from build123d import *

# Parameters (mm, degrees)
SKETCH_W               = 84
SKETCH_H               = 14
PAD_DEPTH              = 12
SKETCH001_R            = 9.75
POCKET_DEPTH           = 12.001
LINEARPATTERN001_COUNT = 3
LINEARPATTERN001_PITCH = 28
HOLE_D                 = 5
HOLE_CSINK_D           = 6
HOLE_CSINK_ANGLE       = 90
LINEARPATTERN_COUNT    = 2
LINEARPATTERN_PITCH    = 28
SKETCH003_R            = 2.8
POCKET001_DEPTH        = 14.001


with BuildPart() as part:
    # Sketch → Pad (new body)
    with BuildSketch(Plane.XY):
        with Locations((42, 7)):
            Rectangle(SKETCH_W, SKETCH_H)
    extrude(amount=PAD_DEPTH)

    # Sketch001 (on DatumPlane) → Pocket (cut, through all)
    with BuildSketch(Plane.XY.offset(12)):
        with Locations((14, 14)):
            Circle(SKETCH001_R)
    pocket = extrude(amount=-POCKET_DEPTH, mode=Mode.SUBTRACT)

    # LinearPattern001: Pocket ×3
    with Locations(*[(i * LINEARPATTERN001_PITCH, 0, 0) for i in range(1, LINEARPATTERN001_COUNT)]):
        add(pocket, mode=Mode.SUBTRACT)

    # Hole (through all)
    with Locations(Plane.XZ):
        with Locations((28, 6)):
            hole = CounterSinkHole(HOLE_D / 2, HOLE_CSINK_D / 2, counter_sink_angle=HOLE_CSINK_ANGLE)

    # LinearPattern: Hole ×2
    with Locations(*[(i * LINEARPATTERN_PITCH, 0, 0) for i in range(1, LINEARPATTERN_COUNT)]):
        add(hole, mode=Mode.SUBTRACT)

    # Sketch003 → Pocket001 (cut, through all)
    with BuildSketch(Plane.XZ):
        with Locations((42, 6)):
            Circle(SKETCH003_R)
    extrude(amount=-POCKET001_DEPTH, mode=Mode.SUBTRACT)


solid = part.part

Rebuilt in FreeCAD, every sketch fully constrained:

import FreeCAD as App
import Part
import Sketcher
from FreeCAD import Vector
Q = App.Units.Quantity


def add_polygon(sketch, points):
    """Adds a closed chain of lines whose ends are joined by coincident constraints."""
    first, n = sketch.GeometryCount, len(points)
    for a, b in zip(points, points[1:] + points[:1]):
        sketch.addGeometry(Part.LineSegment(App.Vector(*a, 0), App.Vector(*b, 0)), False)
    for i in range(n):
        sketch.addConstraint(Sketcher.Constraint("Coincident", first + i, 2, first + (i + 1) % n, 1))

doc = App.newDocument("Part")
params = doc.addObject("Spreadsheet::Sheet", "Params")
for row, (alias, value) in enumerate([
    ("sketch1_width", "84 mm"),
    ("sketch1_height", "14 mm"),
    ("pad1_length", "12 mm"),
    ("sketch2_diameter", "19.5 mm"),
    ("linearpattern_pitch", "28 mm"),
    ("sketch3_diameter", "5 mm"),
    ("hole_diameter", "5 mm"),
    ("hole_csink_diameter", "6 mm"),
    ("linearpattern2_pitch", "28 mm"),
    ("sketch4_diameter", "5.6 mm"),
], start=1):
    params.set(f"A{row}", alias)
    params.set(f"B{row}", "=" + value)
    params.setAlias(f"B{row}", alias)

body = doc.addObject("PartDesign::Body", "Body")

# Sketch on XY plane
sketch1 = body.newObject("Sketcher::SketchObject", "Sketch")
sketch1.AttachmentSupport = (doc.getObject("XY_Plane"), [""])
sketch1.MapMode = "FlatFace"
add_polygon(sketch1, [(0, 14), (0, 0), (84, 0), (84, 14)])  # lines 0-3
sketch1.addConstraint(Sketcher.Constraint("Vertical", 0))
sketch1.addConstraint(Sketcher.Constraint("Horizontal", 1))
sketch1.addConstraint(Sketcher.Constraint("Vertical", 2))
sketch1.addConstraint(Sketcher.Constraint("Horizontal", 3))
sketch1.addConstraint(Sketcher.Constraint("Coincident", 0, 2, -1, 1))
sketch1.addConstraint(Sketcher.Constraint("DistanceX", 1, 1, 1, 2, Q("84 mm")))
sketch1.addConstraint(Sketcher.Constraint("DistanceY", 0, 2, 0, 1, Q("14 mm")))
sketch1.setExpression("Constraints[9]", "Params.sketch1_width")
sketch1.setExpression("Constraints[10]", "Params.sketch1_height")
pad1 = body.newObject("PartDesign::Pad", "Pad")
pad1.Profile = sketch1
pad1.setExpression("Length", "Params.pad1_length")

# Sketch on XY plane
sketch2 = body.newObject("Sketcher::SketchObject", "Sketch001")
sketch2.AttachmentSupport = (doc.getObject("XY_Plane"), [""])
sketch2.MapMode = "FlatFace"
sketch2.AttachmentOffset = App.Placement(Vector(0, 0, 12), App.Rotation())
sketch2.addGeometry(Part.Circle(Vector(14, 14, 0), Vector(0, 0, 1), 10), False)
sketch2.addConstraint(Sketcher.Constraint("Diameter", 0, Q("19.5 mm")))
sketch2.addConstraint(Sketcher.Constraint("DistanceX", -1, 1, 0, 3, Q("14 mm")))
sketch2.addConstraint(Sketcher.Constraint("DistanceY", -1, 1, 0, 3, Q("14 mm")))
sketch2.setExpression("Constraints[0]", "Params.sketch2_diameter")
pocket1 = body.newObject("PartDesign::Pocket", "Pocket")
pocket1.Profile = sketch2
pocket1.Type = "ThroughAll"
doc.recompute()

linearpattern = body.newObject("PartDesign::LinearPattern", "LinearPattern")
linearpattern.Originals = [pocket1]
linearpattern.Direction = (doc.getObject("X_Axis"), [""])
linearpattern.Mode = "offset"
linearpattern.setExpression("Offset", "Params.linearpattern_pitch")
linearpattern.Occurrences = 3
body.Tip = linearpattern

# Sketch on XZ plane
sketch3 = body.newObject("Sketcher::SketchObject", "Sketch002")
sketch3.AttachmentSupport = (doc.getObject("XZ_Plane"), [""])
sketch3.MapMode = "FlatFace"
sketch3.addGeometry(Part.Circle(Vector(28, 6, 0), Vector(0, 0, 1), 2.5), False)
sketch3.addConstraint(Sketcher.Constraint("Diameter", 0, Q("5 mm")))
sketch3.addConstraint(Sketcher.Constraint("DistanceX", -1, 1, 0, 3, Q("28 mm")))
sketch3.addConstraint(Sketcher.Constraint("DistanceY", -1, 1, 0, 3, Q("6 mm")))
sketch3.setExpression("Constraints[0]", "Params.sketch3_diameter")
doc.recompute()
hole = body.newObject("PartDesign::Hole", "Hole")
hole.Profile = sketch3
hole.ThreadType = "None"
hole.setExpression("Diameter", "Params.hole_diameter")
hole.DepthType = "ThroughAll"
hole.HoleCutType = "Countersink"
hole.setExpression("HoleCutDiameter", "Params.hole_csink_diameter")
hole.HoleCutCountersinkAngle = 90
doc.recompute()

linearpattern2 = body.newObject("PartDesign::LinearPattern", "LinearPattern001")
linearpattern2.Originals = [hole]
linearpattern2.Direction = (doc.getObject("X_Axis"), [""])
linearpattern2.Mode = "offset"
linearpattern2.setExpression("Offset", "Params.linearpattern2_pitch")
linearpattern2.Occurrences = 2
body.Tip = linearpattern2

# Sketch on XZ plane
sketch4 = body.newObject("Sketcher::SketchObject", "Sketch003")
sketch4.AttachmentSupport = (doc.getObject("XZ_Plane"), [""])
sketch4.MapMode = "FlatFace"
sketch4.addGeometry(Part.Circle(Vector(42, 6, 0), Vector(0, 0, 1), 2.8), False)
sketch4.addConstraint(Sketcher.Constraint("Diameter", 0, Q("5.6 mm")))
sketch4.addConstraint(Sketcher.Constraint("DistanceX", -1, 1, 0, 3, Q("42 mm")))
sketch4.addConstraint(Sketcher.Constraint("DistanceY", -1, 1, 0, 3, Q("6 mm")))
sketch4.setExpression("Constraints[0]", "Params.sketch4_diameter")
pocket2 = body.newObject("PartDesign::Pocket", "Pocket001")
pocket2.Profile = sketch4
pocket2.Type = "ThroughAll"

doc.recompute()
